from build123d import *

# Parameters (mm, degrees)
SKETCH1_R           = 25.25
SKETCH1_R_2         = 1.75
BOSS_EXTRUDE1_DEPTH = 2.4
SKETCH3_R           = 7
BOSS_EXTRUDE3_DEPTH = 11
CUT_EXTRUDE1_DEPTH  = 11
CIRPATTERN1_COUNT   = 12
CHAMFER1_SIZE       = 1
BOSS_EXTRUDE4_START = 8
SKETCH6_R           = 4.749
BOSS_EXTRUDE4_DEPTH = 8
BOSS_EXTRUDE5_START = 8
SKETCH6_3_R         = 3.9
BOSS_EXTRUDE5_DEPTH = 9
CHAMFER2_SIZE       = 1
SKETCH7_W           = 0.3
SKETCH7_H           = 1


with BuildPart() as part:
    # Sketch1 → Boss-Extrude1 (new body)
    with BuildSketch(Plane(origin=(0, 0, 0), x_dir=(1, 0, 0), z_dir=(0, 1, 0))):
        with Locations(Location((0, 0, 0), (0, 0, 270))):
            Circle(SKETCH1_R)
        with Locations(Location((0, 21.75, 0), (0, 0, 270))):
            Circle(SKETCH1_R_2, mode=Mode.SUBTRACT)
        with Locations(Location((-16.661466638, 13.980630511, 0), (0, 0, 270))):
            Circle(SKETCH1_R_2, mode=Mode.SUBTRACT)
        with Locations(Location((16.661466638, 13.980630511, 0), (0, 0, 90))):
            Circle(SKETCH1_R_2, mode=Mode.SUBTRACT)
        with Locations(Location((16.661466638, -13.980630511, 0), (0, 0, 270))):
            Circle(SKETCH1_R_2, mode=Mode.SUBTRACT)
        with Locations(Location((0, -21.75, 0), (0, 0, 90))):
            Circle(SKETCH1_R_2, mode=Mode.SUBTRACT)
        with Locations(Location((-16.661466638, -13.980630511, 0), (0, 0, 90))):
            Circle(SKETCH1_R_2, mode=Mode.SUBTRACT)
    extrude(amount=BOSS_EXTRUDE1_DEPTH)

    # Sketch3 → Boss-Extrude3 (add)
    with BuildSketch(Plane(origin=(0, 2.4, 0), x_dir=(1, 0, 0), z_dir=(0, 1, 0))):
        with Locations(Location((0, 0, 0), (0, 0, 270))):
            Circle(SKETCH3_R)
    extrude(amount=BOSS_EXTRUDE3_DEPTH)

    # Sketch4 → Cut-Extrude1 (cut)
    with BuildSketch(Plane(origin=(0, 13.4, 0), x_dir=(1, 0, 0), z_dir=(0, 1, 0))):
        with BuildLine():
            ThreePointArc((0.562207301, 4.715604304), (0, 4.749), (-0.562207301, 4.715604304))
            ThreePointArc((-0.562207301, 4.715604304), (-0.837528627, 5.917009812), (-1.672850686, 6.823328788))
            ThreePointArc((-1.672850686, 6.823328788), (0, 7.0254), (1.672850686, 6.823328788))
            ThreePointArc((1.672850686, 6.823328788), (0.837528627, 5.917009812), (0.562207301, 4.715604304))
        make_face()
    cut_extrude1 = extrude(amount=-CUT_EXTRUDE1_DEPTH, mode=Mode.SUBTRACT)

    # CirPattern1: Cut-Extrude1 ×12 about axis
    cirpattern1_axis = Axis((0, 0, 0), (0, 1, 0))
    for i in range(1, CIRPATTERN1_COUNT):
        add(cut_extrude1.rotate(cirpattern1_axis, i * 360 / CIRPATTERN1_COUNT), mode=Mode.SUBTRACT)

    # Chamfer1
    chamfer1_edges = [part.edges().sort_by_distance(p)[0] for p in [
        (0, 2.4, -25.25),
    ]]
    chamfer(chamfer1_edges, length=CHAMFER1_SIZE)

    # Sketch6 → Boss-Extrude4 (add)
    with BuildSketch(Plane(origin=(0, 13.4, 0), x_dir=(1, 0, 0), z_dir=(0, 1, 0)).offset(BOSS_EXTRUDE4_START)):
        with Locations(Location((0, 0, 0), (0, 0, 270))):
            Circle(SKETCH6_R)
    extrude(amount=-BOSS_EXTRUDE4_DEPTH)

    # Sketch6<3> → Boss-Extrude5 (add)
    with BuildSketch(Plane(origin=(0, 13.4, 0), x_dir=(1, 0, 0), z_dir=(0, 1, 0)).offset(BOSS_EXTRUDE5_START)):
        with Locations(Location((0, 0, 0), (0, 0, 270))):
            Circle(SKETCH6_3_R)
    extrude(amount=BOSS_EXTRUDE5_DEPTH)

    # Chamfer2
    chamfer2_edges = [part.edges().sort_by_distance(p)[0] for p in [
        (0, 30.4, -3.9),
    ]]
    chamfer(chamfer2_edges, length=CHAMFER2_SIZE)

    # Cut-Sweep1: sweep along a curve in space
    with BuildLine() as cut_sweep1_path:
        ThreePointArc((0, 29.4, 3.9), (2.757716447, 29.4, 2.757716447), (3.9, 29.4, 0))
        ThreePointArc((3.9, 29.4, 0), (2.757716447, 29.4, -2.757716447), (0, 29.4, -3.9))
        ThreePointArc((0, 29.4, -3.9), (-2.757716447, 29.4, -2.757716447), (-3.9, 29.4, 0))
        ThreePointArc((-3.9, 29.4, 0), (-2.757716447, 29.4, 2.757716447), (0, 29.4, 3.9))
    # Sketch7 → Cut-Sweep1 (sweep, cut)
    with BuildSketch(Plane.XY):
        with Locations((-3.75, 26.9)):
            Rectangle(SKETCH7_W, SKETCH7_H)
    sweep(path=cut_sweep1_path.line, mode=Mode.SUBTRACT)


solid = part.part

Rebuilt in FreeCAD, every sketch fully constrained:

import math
import FreeCAD as App
import Part
import Sketcher
from FreeCAD import Vector
Q = App.Units.Quantity


def edges_at(feature, points):
    """Names of the edges that pass closest to the given points."""
    edges = feature.Shape.Edges
    near = lambda p: min(range(len(edges)), key=lambda i: edges[i].distToShape(Part.Vertex(*p))[0])
    return sorted({f"Edge{near(p) + 1}" for p in points})


def add_polygon(sketch, points):
    """Adds a closed chain of lines whose ends are joined by coincident constraints."""
    first, n = sketch.GeometryCount, len(points)
    for a, b in zip(points, points[1:] + points[:1]):
        sketch.addGeometry(Part.LineSegment(App.Vector(*a, 0), App.Vector(*b, 0)), False)
    for i in range(n):
        sketch.addConstraint(Sketcher.Constraint("Coincident", first + i, 2, first + (i + 1) % n, 1))

doc = App.newDocument("Part")
body = doc.addObject("PartDesign::Body", "Body")

sketch1 = body.newObject("Sketcher::SketchObject", "Sketch")
sketch1.AttachmentSupport = (doc.getObject("XZ_Plane"), [""])
sketch1.MapMode = "FlatFace"
sketch1.addGeometry(Part.Circle(Vector(0, 0, 0), Vector(0, 0, 1), 25.2), False)
sketch1.addGeometry(Part.Circle(Vector(-16.7, -14, 0), Vector(0, 0, 1), 1.8), False)
sketch1.addGeometry(Part.Circle(Vector(0, -21.8, 0), Vector(0, 0, 1), 1.8), False)
sketch1.addGeometry(Part.Circle(Vector(-16.7, 14, 0), Vector(0, 0, 1), 1.8), False)
sketch1.addGeometry(Part.Circle(Vector(16.7, -14, 0), Vector(0, 0, 1), 1.8), False)
sketch1.addGeometry(Part.Circle(Vector(0, 21.8, 0), Vector(0, 0, 1), 1.8), False)
sketch1.addGeometry(Part.Circle(Vector(16.7, 14, 0), Vector(0, 0, 1), 1.8), False)
sketch1.addConstraint(Sketcher.Constraint("Coincident", 0, 3, -1, 1))
sketch1.addConstraint(Sketcher.Constraint("Equal", 1, 2))
sketch1.addConstraint(Sketcher.Constraint("Equal", 2, 3))
sketch1.addConstraint(Sketcher.Constraint("Equal", 3, 4))
sketch1.addConstraint(Sketcher.Constraint("Equal", 4, 5))
sketch1.addConstraint(Sketcher.Constraint("Equal", 5, 6))
sketch1.addConstraint(Sketcher.Constraint("Symmetric", 3, 3, 4, 3, -1, 1))
sketch1.addConstraint(Sketcher.Constraint("Symmetric", 2, 3, 5, 3, -1, 1))
sketch1.addConstraint(Sketcher.Constraint("Symmetric", 1, 3, 6, 3, -1, 1))
sketch1.addConstraint(Sketcher.Constraint("Symmetric", 1, 3, 4, 3, -2))
sketch1.addConstraint(Sketcher.Constraint("PointOnObject", 2, 3, -2))
sketch1.addConstraint(Sketcher.Constraint("Diameter", 0, Q("50.5 mm")))
sketch1.addConstraint(Sketcher.Constraint("Diameter", 1, Q("3.5 mm")))
sketch1.addConstraint(Sketcher.Constraint("DistanceY", 2, 3, 5, 3, Q("43.5 mm")))
sketch1.addConstraint(Sketcher.Constraint("DistanceY", 1, 3, -1, 1, Q("13.980631 mm")))
sketch1.addConstraint(Sketcher.Constraint("DistanceX", 1, 3, -1, 1, Q("16.661467 mm")))
pad1 = body.newObject("PartDesign::Pad", "Pad")
pad1.Profile = sketch1
pad1.Length = 2.4
pad1.Reversed = True

sketch2 = body.newObject("Sketcher::SketchObject", "Sketch001")
sketch2.AttachmentSupport = (doc.getObject("XZ_Plane"), [""])
sketch2.MapMode = "FlatFace"
sketch2.AttachmentOffset = App.Placement(Vector(0, 0, -2.4), App.Rotation())
sketch2.addGeometry(Part.Circle(Vector(0, 0, 0), Vector(0, 0, 1), 7), False)
sketch2.addConstraint(Sketcher.Constraint("Coincident", 0, 3, -1, 1))
sketch2.addConstraint(Sketcher.Constraint("Diameter", 0, Q("14 mm")))
pad2 = body.newObject("PartDesign::Pad", "Pad001")
pad2.Profile = sketch2
pad2.Length = 11
pad2.Reversed = True

sketch3 = body.newObject("Sketcher::SketchObject", "Sketch002")
sketch3.AttachmentSupport = (doc.getObject("XZ_Plane"), [""])
sketch3.MapMode = "FlatFace"
sketch3.AttachmentOffset = App.Placement(Vector(0, 0, -13.4), App.Rotation())
sketch3.addGeometry(Part.ArcOfCircle(Part.Circle(Vector(0, 0, 0), Vector(0, 0, 1), 4.7), math.radians(-96.8), math.radians(-83.2)), False)
sketch3.addGeometry(Part.ArcOfCircle(Part.Circle(Vector(3, -4.8, 0), Vector(0, 0, 1), 2.4), math.radians(178), math.radians(238)), False)
sketch3.addGeometry(Part.ArcOfCircle(Part.Circle(Vector(0, 0, 0), Vector(0, 0, 1), 7), math.radians(-104), math.radians(-76)), False)
sketch3.addGeometry(Part.ArcOfCircle(Part.Circle(Vector(-3, -4.8, 0), Vector(0, 0, 1), 2.4), math.radians(-58), math.radians(2)), False)
sketch3.addConstraint(Sketcher.Constraint("Coincident", 0, 2, 1, 1))
sketch3.addConstraint(Sketcher.Constraint("Coincident", 1, 2, 2, 2))
sketch3.addConstraint(Sketcher.Constraint("Coincident", 2, 1, 3, 1))
sketch3.addConstraint(Sketcher.Constraint("Coincident", 3, 2, 0, 1))
sketch3.addConstraint(Sketcher.Constraint("Coincident", 0, 3, -1, 1))
sketch3.addConstraint(Sketcher.Constraint("Coincident", 2, 3, -1, 1))
sketch3.addConstraint(Sketcher.Constraint("Equal", 1, 3))
sketch3.addConstraint(Sketcher.Constraint("Symmetric", 1, 3, 3, 3, -2))
sketch3.addConstraint(Sketcher.Constraint("Radius", 1, Q("2.4 mm")))
sketch3.addConstraint(Sketcher.Constraint("Radius", 0, Q("4.749 mm")))
sketch3.addConstraint(Sketcher.Constraint("Radius", 2, Q("7.0254 mm")))
sketch3.addConstraint(Sketcher.Constraint("DistanceX", 2, 1, 1, 2, Q("3.345701 mm")))
sketch3.addConstraint(Sketcher.Constraint("DistanceY", 1, 3, -1, 1, Q("4.798181 mm")))
pocket1 = body.newObject("PartDesign::Pocket", "Pocket")
pocket1.Profile = sketch3
pocket1.Length = 11
pocket1.Reversed = True
doc.recompute()

polarpattern = body.newObject("PartDesign::PolarPattern", "PolarPattern")
polarpattern.Originals = [pocket1]
polarpattern.Axis = (doc.getObject("Y_Axis"), [""])
polarpattern.Angle = 360
polarpattern.Occurrences = 12
body.Tip = polarpattern
doc.recompute()

chamfer = body.newObject("PartDesign::Chamfer", "Chamfer")
chamfer.Base = (polarpattern, edges_at(polarpattern, [(0, 2.4, -25.25)]))
chamfer.Size = 1

sketch4 = body.newObject("Sketcher::SketchObject", "Sketch003")
sketch4.AttachmentSupport = (doc.getObject("XZ_Plane"), [""])
sketch4.MapMode = "FlatFace"
sketch4.AttachmentOffset = App.Placement(Vector(0, 0, -21.4), App.Rotation())
sketch4.addGeometry(Part.Circle(Vector(0, 0, 0), Vector(0, 0, 1), 4.7), False)
sketch4.addConstraint(Sketcher.Constraint("Coincident", 0, 3, -1, 1))
sketch4.addConstraint(Sketcher.Constraint("Diameter", 0, Q("9.498 mm")))
pad3 = body.newObject("PartDesign::Pad", "Pad002")
pad3.Profile = sketch4
pad3.Length = 8

sketch5 = body.newObject("Sketcher::SketchObject", "Sketch004")
sketch5.AttachmentSupport = (doc.getObject("XZ_Plane"), [""])
sketch5.MapMode = "FlatFace"
sketch5.AttachmentOffset = App.Placement(Vector(0, 0, -21.4), App.Rotation())
sketch5.addGeometry(Part.Circle(Vector(0, 0, 0), Vector(0, 0, 1), 3.9), False)
sketch5.addConstraint(Sketcher.Constraint("Coincident", 0, 3, -1, 1))
sketch5.addConstraint(Sketcher.Constraint("Diameter", 0, Q("7.8 mm")))
pad4 = body.newObject("PartDesign::Pad", "Pad003")
pad4.Profile = sketch5
pad4.Length = 9
pad4.Reversed = True
doc.recompute()

chamfer2 = body.newObject("PartDesign::Chamfer", "Chamfer001")
chamfer2.Base = (pad4, edges_at(pad4, [(0, 30.4, -3.9)]))
chamfer2.Size = 1

sketch6 = body.newObject("Sketcher::SketchObject", "Sketch005")
sketch6.AttachmentSupport = (doc.getObject("XY_Plane"), [""])
sketch6.MapMode = "FlatFace"
add_polygon(sketch6, [(-3.9, 27.4), (-3.9, 26.4), (-3.6, 26.4), (-3.6, 27.4)])
sketch6.addConstraint(Sketcher.Constraint("Vertical", 0))
sketch6.addConstraint(Sketcher.Constraint("Horizontal", 1))
sketch6.addConstraint(Sketcher.Constraint("Vertical", 2))
sketch6.addConstraint(Sketcher.Constraint("Horizontal", 3))
sketch6.addConstraint(Sketcher.Constraint("DistanceY", 0, 2, 0, 1, Q("1 mm")))
sketch6.addConstraint(Sketcher.Constraint("DistanceX", 1, 1, 1, 2, Q("0.3 mm")))
sketch6.addConstraint(Sketcher.Constraint("DistanceX", 0, 2, -1, 1, Q("3.9 mm")))
sketch6.addConstraint(Sketcher.Constraint("DistanceY", -1, 1, 0, 2, Q("26.4 mm")))

sketch7 = body.newObject("Sketcher::SketchObject", "Sketch006")
sketch7.AttachmentSupport = (doc.getObject("XZ_Plane"), [""])
sketch7.MapMode = "FlatFace"
sketch7.AttachmentOffset = App.Placement(Vector(0, 0, -29.4), App.Rotation())
sketch7.addGeometry(Part.ArcOfCircle(Part.Circle(Vector(0, 0, 0), Vector(0, 0, 1), 3.9), math.radians(0), math.radians(90)), False)
sketch7.addGeometry(Part.ArcOfCircle(Part.Circle(Vector(0, 0, 0), Vector(0, 0, 1), 3.9), math.radians(-90), math.radians(0)), False)
sketch7.addGeometry(Part.ArcOfCircle(Part.Circle(Vector(0, 0, 0), Vector(0, 0, 1), 3.9), math.radians(180), math.radians(270)), False)
sketch7.addGeometry(Part.ArcOfCircle(Part.Circle(Vector(0, 0, 0), Vector(0, 0, 1), 3.9), math.radians(90), math.radians(180)), False)
sketch7.addConstraint(Sketcher.Constraint("Tangent", 0, 1, 1, 2))
sketch7.addConstraint(Sketcher.Constraint("Tangent", 1, 1, 2, 2))
sketch7.addConstraint(Sketcher.Constraint("Tangent", 2, 1, 3, 2))
sketch7.addConstraint(Sketcher.Constraint("Tangent", 3, 1, 0, 2))
sketch7.addConstraint(Sketcher.Constraint("Coincident", 0, 3, -1, 1))
sketch7.addConstraint(Sketcher.Constraint("Equal", 0, 1))
sketch7.addConstraint(Sketcher.Constraint("PointOnObject", 0, 1, -1))
sketch7.addConstraint(Sketcher.Constraint("PointOnObject", 1, 1, -2))
sketch7.addConstraint(Sketcher.Constraint("PointOnObject", 2, 1, -1))
sketch7.addConstraint(Sketcher.Constraint("PointOnObject", 3, 1, -2))
sketch7.addConstraint(Sketcher.Constraint("Radius", 0, Q("3.9 mm")))
doc.recompute()

subtractivepipe = body.newObject("PartDesign::SubtractivePipe", "SubtractivePipe")
subtractivepipe.Profile = sketch6
subtractivepipe.Spine = (sketch7, ["Edge1", "Edge2", "Edge3", "Edge4"])

doc.recompute()
